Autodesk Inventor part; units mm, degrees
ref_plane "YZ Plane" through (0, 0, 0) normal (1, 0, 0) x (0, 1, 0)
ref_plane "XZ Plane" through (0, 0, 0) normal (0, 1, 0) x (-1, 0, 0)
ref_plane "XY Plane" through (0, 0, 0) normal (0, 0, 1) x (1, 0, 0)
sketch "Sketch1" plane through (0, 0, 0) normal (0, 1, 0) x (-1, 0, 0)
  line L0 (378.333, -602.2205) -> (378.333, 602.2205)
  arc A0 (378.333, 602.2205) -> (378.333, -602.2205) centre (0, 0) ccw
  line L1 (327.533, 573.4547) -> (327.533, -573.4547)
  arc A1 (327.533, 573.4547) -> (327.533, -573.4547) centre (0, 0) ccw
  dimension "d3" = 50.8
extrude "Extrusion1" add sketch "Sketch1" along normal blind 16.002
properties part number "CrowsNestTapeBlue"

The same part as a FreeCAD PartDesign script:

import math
import FreeCAD as App
import Part
import Sketcher

V = App.Vector
Q = App.Units.Quantity

doc = App.newDocument("Part")
params = doc.addObject("Spreadsheet::Sheet", "Params")
for row, (alias, value) in enumerate([
    ("sketch1_radius", "28 in"),
    ("sketch1_radius2", "26 in"),
    ("pad1_length", "0.63 in"),
], start=1):
    params.set(f"A{row}", alias)
    params.set(f"B{row}", "=" + value)
    params.setAlias(f"B{row}", alias)

body = doc.addObject("PartDesign::Body", "Body")

sketch1 = body.newObject("Sketcher::SketchObject", "Sketch")
sketch1.AttachmentSupport = (doc.getObject("XZ_Plane"), [""])
sketch1.MapMode = "FlatFace"
sketch1.addGeometry([
    Part.ArcOfCircle(Part.Circle(V(0, 0, 0), V(0, 0, 1), 711), math.radians(-122), math.radians(122)),
    Part.LineSegment(V(-378, -602, 0), V(-378, 602, 0)),
    Part.ArcOfCircle(Part.Circle(V(0, 0, 0), V(0, 0, 1), 660), math.radians(-120), math.radians(120)),
    Part.LineSegment(V(-328, 573, 0), V(-328, -573, 0)),
], False)
sketch1.addConstraint([
    Sketcher.Constraint("Coincident", 0, 1, 1, 1),
    Sketcher.Constraint("Coincident", 1, 2, 0, 2),
    Sketcher.Constraint("Coincident", 2, 1, 3, 2),
    Sketcher.Constraint("Coincident", 3, 1, 2, 2),
    Sketcher.Constraint("Vertical", 1),
    Sketcher.Constraint("Vertical", 3),
    Sketcher.Constraint("Coincident", 0, 3, -1, 1),
    Sketcher.Constraint("Coincident", 2, 3, -1, 1),
    Sketcher.Constraint("Radius", 0, Q("28 in")),
    Sketcher.Constraint("Radius", 2, Q("26 in")),
    Sketcher.Constraint("DistanceX", 1, 2, 3, 1, Q("2 in")),
    Sketcher.Constraint("DistanceX", 1, 2, -1, 1, Q("14.895 in")),
])
sketch1.setExpression("Constraints[8]", "Params.sketch1_radius")
sketch1.setExpression("Constraints[9]", "Params.sketch1_radius2")
pad1 = body.newObject("PartDesign::Pad", "Pad")
pad1.Profile = sketch1
pad1.setExpression("Length", "Params.pad1_length")
pad1.Reversed = True

doc.recompute()
